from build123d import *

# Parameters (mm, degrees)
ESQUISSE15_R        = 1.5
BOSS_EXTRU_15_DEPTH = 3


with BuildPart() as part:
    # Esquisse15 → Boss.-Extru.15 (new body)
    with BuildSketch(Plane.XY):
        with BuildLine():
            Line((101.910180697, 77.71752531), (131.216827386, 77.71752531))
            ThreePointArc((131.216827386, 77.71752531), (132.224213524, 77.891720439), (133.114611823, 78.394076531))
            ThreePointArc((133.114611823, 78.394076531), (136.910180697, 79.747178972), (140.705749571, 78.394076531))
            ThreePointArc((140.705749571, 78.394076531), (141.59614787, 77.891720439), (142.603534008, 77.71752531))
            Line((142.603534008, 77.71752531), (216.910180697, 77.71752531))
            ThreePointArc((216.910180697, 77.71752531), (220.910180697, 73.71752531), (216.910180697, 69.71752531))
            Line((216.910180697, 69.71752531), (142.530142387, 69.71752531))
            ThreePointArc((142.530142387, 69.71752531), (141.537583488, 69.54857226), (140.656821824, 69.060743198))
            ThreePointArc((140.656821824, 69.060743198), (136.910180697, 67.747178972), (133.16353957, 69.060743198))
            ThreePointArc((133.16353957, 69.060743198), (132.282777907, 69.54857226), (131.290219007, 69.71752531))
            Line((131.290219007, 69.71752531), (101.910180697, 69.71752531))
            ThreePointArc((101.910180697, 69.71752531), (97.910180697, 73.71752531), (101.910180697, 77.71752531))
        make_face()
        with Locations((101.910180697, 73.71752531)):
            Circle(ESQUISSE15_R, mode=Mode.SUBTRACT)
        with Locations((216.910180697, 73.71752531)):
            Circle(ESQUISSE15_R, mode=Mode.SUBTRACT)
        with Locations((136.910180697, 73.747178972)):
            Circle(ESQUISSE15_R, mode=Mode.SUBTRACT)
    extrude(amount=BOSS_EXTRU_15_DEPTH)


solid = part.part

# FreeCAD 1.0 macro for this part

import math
import FreeCAD as App
import Part
import Sketcher
from FreeCAD import Vector

doc = App.newDocument("Part")
body = doc.addObject("PartDesign::Body", "Body")

# Sketch on XY plane
sketch1 = body.newObject("Sketcher::SketchObject", "Sketch")
sketch1.AttachmentSupport = (doc.getObject("XY_Plane"), [""])
sketch1.MapMode = "FlatFace"
sketch1.addGeometry(Part.LineSegment(Vector(131.216827, 77.717525, 0), Vector(101.910181, 77.717525, 0)), False)
sketch1.addGeometry(Part.ArcOfCircle(Part.Circle(Vector(101.910181, 73.717525, 0), Vector(0, 0, 1), 4), math.radians(90), math.radians(270)), False)
sketch1.addGeometry(Part.LineSegment(Vector(101.910181, 69.717525, 0), Vector(131.290219, 69.717525, 0)), False)
sketch1.addGeometry(Part.ArcOfCircle(Part.Circle(Vector(131.290219, 66.717525, 0), Vector(0, 0, 1), 3), math.radians(51.358889), math.radians(90)), False)
sketch1.addGeometry(Part.ArcOfCircle(Part.Circle(Vector(136.910181, 73.747179, 0), Vector(0, 0, 1), 6), math.radians(-128.641111), math.radians(-51.358889)), False)
sketch1.addGeometry(Part.ArcOfCircle(Part.Circle(Vector(142.530142, 66.717525, 0), Vector(0, 0, 1), 3), math.radians(90), math.radians(128.64111)), False)
sketch1.addGeometry(Part.LineSegment(Vector(142.530142, 69.717525, 0), Vector(216.910181, 69.717525, 0)), False)
sketch1.addGeometry(Part.ArcOfCircle(Part.Circle(Vector(216.910181, 73.717525, 0), Vector(0, 0, 1), 4), math.radians(-90), math.radians(90)), False)
sketch1.addGeometry(Part.LineSegment(Vector(216.910181, 77.717525, 0), Vector(142.603534, 77.717525, 0)), False)
sketch1.addGeometry(Part.ArcOfCircle(Part.Circle(Vector(142.603534, 80.717525, 0), Vector(0, 0, 1), 3), math.radians(-129.241824), math.radians(-90)), False)
sketch1.addGeometry(Part.ArcOfCircle(Part.Circle(Vector(136.910181, 73.747179, 0), Vector(0, 0, 1), 6), math.radians(50.758176), math.radians(129.241824)), False)
sketch1.addGeometry(Part.ArcOfCircle(Part.Circle(Vector(131.216827, 80.717525, 0), Vector(0, 0, 1), 3), math.radians(-90), math.radians(-50.758176)), False)
sketch1.addGeometry(Part.Circle(Vector(216.910181, 73.717525, 0), Vector(0, 0, 1), 1.5), False)
sketch1.addGeometry(Part.Circle(Vector(101.910181, 73.717525, 0), Vector(0, 0, 1), 1.5), False)
sketch1.addGeometry(Part.Circle(Vector(136.910181, 73.747179, 0), Vector(0, 0, 1), 1.5), False)
sketch1.addConstraint(Sketcher.Constraint("Tangent", 0, 2, 1, 1))
sketch1.addConstraint(Sketcher.Constraint("Tangent", 1, 2, 2, 1))
sketch1.addConstraint(Sketcher.Constraint("Tangent", 2, 2, 3, 2))
sketch1.addConstraint(Sketcher.Constraint("Tangent", 3, 1, 4, 1))
sketch1.addConstraint(Sketcher.Constraint("Tangent", 4, 2, 5, 2))
sketch1.addConstraint(Sketcher.Constraint("Tangent", 5, 1, 6, 1))
sketch1.addConstraint(Sketcher.Constraint("Tangent", 6, 2, 7, 1))
sketch1.addConstraint(Sketcher.Constraint("Tangent", 7, 2, 8, 1))
sketch1.addConstraint(Sketcher.Constraint("Tangent", 8, 2, 9, 2))
sketch1.addConstraint(Sketcher.Constraint("Tangent", 9, 1, 10, 1))
sketch1.addConstraint(Sketcher.Constraint("Tangent", 10, 2, 11, 2))
sketch1.addConstraint(Sketcher.Constraint("Tangent", 11, 1, 0, 1))
sketch1.addConstraint(Sketcher.Constraint("Horizontal", 0))
sketch1.addConstraint(Sketcher.Constraint("Horizontal", 2))
sketch1.addConstraint(Sketcher.Constraint("Horizontal", 6))
sketch1.addConstraint(Sketcher.Constraint("Horizontal", 8))
sketch1.addConstraint(Sketcher.Constraint("Coincident", 10, 3, 4, 3))
sketch1.addConstraint(Sketcher.Constraint("Coincident", 12, 3, 7, 3))
sketch1.addConstraint(Sketcher.Constraint("Coincident", 13, 3, 1, 3))
sketch1.addConstraint(Sketcher.Constraint("Coincident", 14, 3, 4, 3))
sketch1.addConstraint(Sketcher.Constraint("Equal", 3, 5))
sketch1.addConstraint(Sketcher.Constraint("Equal", 1, 7))
sketch1.addConstraint(Sketcher.Constraint("Equal", 5, 9))
sketch1.addConstraint(Sketcher.Constraint("Equal", 4, 10))
sketch1.addConstraint(Sketcher.Constraint("Equal", 9, 11))
sketch1.addConstraint(Sketcher.Constraint("Equal", 12, 13))
sketch1.addConstraint(Sketcher.Constraint("Equal", 13, 14))
sketch1.addConstraint(Sketcher.Constraint("Horizontal", 3, 3, 5, 3))
sketch1.addConstraint(Sketcher.Constraint("Diameter", 12, 3.0))
sketch1.addConstraint(Sketcher.Constraint("Radius", 1, 4.0))
sketch1.addConstraint(Sketcher.Constraint("Radius", 3, 3.0))
sketch1.addConstraint(Sketcher.Constraint("Radius", 4, 6.0))
sketch1.addConstraint(Sketcher.Constraint("DistanceX", 1, 3, 4, 3, 35.0))
sketch1.addConstraint(Sketcher.Constraint("DistanceX", 4, 3, 7, 3, 80.0))
sketch1.addConstraint(Sketcher.Constraint("DistanceX", 2, 1, 2, 2, 29.380038))
sketch1.addConstraint(Sketcher.Constraint("DistanceX", -1, 1, 1, 3, 101.910181))
sketch1.addConstraint(Sketcher.Constraint("DistanceY", -1, 1, 4, 3, 73.747179))
pad1 = body.newObject("PartDesign::Pad", "Pad")
pad1.Profile = sketch1
pad1.Length = 3

doc.recompute()
